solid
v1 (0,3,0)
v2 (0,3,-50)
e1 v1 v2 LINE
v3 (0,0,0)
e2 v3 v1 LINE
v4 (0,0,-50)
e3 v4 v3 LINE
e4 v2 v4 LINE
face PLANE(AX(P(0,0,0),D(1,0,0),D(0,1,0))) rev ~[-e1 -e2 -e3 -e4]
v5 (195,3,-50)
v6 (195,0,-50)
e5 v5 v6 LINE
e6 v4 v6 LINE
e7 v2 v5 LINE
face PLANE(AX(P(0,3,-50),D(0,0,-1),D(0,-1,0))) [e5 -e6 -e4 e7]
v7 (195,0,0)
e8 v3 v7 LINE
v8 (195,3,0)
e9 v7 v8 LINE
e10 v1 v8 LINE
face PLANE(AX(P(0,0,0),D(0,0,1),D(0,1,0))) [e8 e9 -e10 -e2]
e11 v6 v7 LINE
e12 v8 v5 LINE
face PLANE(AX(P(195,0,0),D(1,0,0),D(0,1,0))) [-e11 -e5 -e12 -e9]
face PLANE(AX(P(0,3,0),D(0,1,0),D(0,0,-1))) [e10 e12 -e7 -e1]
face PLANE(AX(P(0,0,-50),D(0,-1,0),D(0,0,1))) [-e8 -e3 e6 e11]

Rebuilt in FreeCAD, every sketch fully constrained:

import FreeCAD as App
import Part
import Sketcher

doc = App.newDocument("Part")
params = doc.addObject("Spreadsheet::Sheet", "Params")
for row, (alias, value) in enumerate([
    ("sketch1_width", "3 mm"),
    ("sketch1_height", "50 mm"),
    ("pad1_length", "195 mm"),
], start=1):
    params.set(f"A{row}", alias)
    params.set(f"B{row}", "=" + value)
    params.setAlias(f"B{row}", alias)

body = doc.addObject("PartDesign::Body", "Body")

# Sketch on YZ plane
sketch1 = body.newObject("Sketcher::SketchObject", "Sketch")
sketch1.AttachmentSupport = (doc.getObject("YZ_Plane"), [""])
sketch1.MapMode = "FlatFace"
sketch1.addGeometry(Part.LineSegment(App.Vector(3, 0, 0), App.Vector(0, 0, 0)), False)
sketch1.addGeometry(Part.LineSegment(App.Vector(0, 0, 0), App.Vector(0, -50, 0)), False)
sketch1.addGeometry(Part.LineSegment(App.Vector(0, -50, 0), App.Vector(3, -50, 0)), False)
sketch1.addGeometry(Part.LineSegment(App.Vector(3, -50, 0), App.Vector(3, 0, 0)), False)
sketch1.addConstraint(Sketcher.Constraint("Coincident", 0, 2, 1, 1))
sketch1.addConstraint(Sketcher.Constraint("Coincident", 1, 2, 2, 1))
sketch1.addConstraint(Sketcher.Constraint("Coincident", 2, 2, 3, 1))
sketch1.addConstraint(Sketcher.Constraint("Coincident", 3, 2, 0, 1))
sketch1.addConstraint(Sketcher.Constraint("Horizontal", 0))
sketch1.addConstraint(Sketcher.Constraint("Vertical", 1))
sketch1.addConstraint(Sketcher.Constraint("Horizontal", 2))
sketch1.addConstraint(Sketcher.Constraint("Vertical", 3))
sketch1.addConstraint(Sketcher.Constraint("Coincident", 0, 2, -1, 1))
sketch1.addConstraint(Sketcher.Constraint("DistanceX", 0, 2, 0, 1, 3.0))
sketch1.addConstraint(Sketcher.Constraint("DistanceY", 1, 2, 1, 1, 50.0))
sketch1.setExpression("Constraints[9]", "Params.sketch1_width")
sketch1.setExpression("Constraints[10]", "Params.sketch1_height")
pad1 = body.newObject("PartDesign::Pad", "Pad")
pad1.Profile = sketch1
pad1.setExpression("Length", "Params.pad1_length")

doc.recompute()
